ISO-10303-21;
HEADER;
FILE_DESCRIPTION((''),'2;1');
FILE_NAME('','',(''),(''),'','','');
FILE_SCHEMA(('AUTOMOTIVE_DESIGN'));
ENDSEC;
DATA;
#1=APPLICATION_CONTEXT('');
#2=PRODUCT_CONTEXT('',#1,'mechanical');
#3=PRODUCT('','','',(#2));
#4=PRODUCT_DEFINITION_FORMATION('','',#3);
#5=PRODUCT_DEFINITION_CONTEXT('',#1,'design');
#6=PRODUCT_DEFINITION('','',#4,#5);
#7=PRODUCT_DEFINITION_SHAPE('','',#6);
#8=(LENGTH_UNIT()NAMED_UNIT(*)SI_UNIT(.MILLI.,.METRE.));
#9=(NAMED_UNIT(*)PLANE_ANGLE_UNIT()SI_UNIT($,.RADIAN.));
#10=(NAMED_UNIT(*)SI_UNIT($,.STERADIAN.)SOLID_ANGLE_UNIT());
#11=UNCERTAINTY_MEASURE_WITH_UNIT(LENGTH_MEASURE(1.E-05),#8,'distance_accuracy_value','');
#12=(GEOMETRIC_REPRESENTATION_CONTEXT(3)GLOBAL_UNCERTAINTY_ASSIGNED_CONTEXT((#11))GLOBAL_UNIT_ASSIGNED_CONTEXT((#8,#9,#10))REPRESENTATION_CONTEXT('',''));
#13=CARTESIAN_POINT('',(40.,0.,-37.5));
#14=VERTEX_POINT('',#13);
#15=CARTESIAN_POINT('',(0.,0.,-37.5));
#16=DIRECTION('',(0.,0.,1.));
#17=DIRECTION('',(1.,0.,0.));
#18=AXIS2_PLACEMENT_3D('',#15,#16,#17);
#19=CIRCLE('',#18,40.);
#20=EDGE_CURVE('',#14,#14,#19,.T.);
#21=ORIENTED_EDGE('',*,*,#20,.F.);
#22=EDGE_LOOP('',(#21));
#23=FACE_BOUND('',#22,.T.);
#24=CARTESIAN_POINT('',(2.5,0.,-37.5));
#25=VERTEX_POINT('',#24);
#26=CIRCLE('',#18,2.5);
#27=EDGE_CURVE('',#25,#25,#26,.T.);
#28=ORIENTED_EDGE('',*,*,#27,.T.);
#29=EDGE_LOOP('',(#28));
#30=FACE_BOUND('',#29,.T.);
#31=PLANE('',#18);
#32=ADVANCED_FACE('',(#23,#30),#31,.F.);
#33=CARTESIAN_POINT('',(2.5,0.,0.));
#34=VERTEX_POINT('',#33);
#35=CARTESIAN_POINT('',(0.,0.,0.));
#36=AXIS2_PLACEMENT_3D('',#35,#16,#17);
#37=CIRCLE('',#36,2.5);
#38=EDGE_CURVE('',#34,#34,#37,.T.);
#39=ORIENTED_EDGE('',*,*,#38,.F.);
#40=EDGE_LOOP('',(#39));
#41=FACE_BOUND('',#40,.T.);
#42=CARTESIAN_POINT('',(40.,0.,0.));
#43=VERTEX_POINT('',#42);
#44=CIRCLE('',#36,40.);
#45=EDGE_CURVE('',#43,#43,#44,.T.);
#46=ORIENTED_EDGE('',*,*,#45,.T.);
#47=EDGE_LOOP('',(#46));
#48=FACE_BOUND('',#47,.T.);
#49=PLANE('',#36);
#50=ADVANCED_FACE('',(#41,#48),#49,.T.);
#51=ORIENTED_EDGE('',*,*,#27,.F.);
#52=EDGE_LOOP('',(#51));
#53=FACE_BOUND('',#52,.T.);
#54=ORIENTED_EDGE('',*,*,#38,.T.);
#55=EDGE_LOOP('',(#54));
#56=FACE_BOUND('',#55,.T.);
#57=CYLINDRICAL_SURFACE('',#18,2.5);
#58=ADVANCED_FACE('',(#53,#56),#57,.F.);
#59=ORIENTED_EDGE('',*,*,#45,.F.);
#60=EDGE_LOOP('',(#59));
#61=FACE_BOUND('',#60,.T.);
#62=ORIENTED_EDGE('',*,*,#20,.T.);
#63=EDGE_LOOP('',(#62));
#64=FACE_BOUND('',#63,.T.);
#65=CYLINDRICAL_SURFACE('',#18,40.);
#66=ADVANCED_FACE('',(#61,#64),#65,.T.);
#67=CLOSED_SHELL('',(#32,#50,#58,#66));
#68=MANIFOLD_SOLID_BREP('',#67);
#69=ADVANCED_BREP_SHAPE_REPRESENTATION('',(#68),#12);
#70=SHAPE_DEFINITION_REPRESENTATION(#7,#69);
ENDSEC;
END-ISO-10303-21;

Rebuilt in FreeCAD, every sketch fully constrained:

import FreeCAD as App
import Part
import Sketcher
from FreeCAD import Vector
Q = App.Units.Quantity

doc = App.newDocument("Part")
body = doc.addObject("PartDesign::Body", "Body")

sketch1 = doc.addObject("Sketcher::SketchObject", "Sketch")
body.addObject(sketch1)
sketch1.AttachmentSupport = (doc.XY_Plane, [""])
sketch1.MapMode = "FlatFace"
sketch1.addGeometry(Part.Circle(Vector(0, 0, 0), Vector(0, 0, 1), 40), False)
sketch1.addConstraint(Sketcher.Constraint("Coincident", 0, 3, -1, 1))
sketch1.addConstraint(Sketcher.Constraint("Diameter", 0, Q("80 mm")))
pad1 = doc.addObject("PartDesign::Pad", "Pad")
body.addObject(pad1)
pad1.Profile = sketch1
pad1.Length = 37.5
pad1.Reversed = True

sketch2 = doc.addObject("Sketcher::SketchObject", "Sketch001")
body.addObject(sketch2)
sketch2.AttachmentSupport = (doc.XY_Plane, [""])
sketch2.MapMode = "FlatFace"
sketch2.addGeometry(Part.Circle(Vector(0, 0, 0), Vector(0, 0, 1), 2.5), False)
sketch2.addConstraint(Sketcher.Constraint("Coincident", 0, 3, -1, 1))
sketch2.addConstraint(Sketcher.Constraint("Diameter", 0, Q("5 mm")))
pocket1 = doc.addObject("PartDesign::Pocket", "Pocket")
body.addObject(pocket1)
pocket1.Profile = sketch2
pocket1.Type = "ThroughAll"

doc.recompute()
